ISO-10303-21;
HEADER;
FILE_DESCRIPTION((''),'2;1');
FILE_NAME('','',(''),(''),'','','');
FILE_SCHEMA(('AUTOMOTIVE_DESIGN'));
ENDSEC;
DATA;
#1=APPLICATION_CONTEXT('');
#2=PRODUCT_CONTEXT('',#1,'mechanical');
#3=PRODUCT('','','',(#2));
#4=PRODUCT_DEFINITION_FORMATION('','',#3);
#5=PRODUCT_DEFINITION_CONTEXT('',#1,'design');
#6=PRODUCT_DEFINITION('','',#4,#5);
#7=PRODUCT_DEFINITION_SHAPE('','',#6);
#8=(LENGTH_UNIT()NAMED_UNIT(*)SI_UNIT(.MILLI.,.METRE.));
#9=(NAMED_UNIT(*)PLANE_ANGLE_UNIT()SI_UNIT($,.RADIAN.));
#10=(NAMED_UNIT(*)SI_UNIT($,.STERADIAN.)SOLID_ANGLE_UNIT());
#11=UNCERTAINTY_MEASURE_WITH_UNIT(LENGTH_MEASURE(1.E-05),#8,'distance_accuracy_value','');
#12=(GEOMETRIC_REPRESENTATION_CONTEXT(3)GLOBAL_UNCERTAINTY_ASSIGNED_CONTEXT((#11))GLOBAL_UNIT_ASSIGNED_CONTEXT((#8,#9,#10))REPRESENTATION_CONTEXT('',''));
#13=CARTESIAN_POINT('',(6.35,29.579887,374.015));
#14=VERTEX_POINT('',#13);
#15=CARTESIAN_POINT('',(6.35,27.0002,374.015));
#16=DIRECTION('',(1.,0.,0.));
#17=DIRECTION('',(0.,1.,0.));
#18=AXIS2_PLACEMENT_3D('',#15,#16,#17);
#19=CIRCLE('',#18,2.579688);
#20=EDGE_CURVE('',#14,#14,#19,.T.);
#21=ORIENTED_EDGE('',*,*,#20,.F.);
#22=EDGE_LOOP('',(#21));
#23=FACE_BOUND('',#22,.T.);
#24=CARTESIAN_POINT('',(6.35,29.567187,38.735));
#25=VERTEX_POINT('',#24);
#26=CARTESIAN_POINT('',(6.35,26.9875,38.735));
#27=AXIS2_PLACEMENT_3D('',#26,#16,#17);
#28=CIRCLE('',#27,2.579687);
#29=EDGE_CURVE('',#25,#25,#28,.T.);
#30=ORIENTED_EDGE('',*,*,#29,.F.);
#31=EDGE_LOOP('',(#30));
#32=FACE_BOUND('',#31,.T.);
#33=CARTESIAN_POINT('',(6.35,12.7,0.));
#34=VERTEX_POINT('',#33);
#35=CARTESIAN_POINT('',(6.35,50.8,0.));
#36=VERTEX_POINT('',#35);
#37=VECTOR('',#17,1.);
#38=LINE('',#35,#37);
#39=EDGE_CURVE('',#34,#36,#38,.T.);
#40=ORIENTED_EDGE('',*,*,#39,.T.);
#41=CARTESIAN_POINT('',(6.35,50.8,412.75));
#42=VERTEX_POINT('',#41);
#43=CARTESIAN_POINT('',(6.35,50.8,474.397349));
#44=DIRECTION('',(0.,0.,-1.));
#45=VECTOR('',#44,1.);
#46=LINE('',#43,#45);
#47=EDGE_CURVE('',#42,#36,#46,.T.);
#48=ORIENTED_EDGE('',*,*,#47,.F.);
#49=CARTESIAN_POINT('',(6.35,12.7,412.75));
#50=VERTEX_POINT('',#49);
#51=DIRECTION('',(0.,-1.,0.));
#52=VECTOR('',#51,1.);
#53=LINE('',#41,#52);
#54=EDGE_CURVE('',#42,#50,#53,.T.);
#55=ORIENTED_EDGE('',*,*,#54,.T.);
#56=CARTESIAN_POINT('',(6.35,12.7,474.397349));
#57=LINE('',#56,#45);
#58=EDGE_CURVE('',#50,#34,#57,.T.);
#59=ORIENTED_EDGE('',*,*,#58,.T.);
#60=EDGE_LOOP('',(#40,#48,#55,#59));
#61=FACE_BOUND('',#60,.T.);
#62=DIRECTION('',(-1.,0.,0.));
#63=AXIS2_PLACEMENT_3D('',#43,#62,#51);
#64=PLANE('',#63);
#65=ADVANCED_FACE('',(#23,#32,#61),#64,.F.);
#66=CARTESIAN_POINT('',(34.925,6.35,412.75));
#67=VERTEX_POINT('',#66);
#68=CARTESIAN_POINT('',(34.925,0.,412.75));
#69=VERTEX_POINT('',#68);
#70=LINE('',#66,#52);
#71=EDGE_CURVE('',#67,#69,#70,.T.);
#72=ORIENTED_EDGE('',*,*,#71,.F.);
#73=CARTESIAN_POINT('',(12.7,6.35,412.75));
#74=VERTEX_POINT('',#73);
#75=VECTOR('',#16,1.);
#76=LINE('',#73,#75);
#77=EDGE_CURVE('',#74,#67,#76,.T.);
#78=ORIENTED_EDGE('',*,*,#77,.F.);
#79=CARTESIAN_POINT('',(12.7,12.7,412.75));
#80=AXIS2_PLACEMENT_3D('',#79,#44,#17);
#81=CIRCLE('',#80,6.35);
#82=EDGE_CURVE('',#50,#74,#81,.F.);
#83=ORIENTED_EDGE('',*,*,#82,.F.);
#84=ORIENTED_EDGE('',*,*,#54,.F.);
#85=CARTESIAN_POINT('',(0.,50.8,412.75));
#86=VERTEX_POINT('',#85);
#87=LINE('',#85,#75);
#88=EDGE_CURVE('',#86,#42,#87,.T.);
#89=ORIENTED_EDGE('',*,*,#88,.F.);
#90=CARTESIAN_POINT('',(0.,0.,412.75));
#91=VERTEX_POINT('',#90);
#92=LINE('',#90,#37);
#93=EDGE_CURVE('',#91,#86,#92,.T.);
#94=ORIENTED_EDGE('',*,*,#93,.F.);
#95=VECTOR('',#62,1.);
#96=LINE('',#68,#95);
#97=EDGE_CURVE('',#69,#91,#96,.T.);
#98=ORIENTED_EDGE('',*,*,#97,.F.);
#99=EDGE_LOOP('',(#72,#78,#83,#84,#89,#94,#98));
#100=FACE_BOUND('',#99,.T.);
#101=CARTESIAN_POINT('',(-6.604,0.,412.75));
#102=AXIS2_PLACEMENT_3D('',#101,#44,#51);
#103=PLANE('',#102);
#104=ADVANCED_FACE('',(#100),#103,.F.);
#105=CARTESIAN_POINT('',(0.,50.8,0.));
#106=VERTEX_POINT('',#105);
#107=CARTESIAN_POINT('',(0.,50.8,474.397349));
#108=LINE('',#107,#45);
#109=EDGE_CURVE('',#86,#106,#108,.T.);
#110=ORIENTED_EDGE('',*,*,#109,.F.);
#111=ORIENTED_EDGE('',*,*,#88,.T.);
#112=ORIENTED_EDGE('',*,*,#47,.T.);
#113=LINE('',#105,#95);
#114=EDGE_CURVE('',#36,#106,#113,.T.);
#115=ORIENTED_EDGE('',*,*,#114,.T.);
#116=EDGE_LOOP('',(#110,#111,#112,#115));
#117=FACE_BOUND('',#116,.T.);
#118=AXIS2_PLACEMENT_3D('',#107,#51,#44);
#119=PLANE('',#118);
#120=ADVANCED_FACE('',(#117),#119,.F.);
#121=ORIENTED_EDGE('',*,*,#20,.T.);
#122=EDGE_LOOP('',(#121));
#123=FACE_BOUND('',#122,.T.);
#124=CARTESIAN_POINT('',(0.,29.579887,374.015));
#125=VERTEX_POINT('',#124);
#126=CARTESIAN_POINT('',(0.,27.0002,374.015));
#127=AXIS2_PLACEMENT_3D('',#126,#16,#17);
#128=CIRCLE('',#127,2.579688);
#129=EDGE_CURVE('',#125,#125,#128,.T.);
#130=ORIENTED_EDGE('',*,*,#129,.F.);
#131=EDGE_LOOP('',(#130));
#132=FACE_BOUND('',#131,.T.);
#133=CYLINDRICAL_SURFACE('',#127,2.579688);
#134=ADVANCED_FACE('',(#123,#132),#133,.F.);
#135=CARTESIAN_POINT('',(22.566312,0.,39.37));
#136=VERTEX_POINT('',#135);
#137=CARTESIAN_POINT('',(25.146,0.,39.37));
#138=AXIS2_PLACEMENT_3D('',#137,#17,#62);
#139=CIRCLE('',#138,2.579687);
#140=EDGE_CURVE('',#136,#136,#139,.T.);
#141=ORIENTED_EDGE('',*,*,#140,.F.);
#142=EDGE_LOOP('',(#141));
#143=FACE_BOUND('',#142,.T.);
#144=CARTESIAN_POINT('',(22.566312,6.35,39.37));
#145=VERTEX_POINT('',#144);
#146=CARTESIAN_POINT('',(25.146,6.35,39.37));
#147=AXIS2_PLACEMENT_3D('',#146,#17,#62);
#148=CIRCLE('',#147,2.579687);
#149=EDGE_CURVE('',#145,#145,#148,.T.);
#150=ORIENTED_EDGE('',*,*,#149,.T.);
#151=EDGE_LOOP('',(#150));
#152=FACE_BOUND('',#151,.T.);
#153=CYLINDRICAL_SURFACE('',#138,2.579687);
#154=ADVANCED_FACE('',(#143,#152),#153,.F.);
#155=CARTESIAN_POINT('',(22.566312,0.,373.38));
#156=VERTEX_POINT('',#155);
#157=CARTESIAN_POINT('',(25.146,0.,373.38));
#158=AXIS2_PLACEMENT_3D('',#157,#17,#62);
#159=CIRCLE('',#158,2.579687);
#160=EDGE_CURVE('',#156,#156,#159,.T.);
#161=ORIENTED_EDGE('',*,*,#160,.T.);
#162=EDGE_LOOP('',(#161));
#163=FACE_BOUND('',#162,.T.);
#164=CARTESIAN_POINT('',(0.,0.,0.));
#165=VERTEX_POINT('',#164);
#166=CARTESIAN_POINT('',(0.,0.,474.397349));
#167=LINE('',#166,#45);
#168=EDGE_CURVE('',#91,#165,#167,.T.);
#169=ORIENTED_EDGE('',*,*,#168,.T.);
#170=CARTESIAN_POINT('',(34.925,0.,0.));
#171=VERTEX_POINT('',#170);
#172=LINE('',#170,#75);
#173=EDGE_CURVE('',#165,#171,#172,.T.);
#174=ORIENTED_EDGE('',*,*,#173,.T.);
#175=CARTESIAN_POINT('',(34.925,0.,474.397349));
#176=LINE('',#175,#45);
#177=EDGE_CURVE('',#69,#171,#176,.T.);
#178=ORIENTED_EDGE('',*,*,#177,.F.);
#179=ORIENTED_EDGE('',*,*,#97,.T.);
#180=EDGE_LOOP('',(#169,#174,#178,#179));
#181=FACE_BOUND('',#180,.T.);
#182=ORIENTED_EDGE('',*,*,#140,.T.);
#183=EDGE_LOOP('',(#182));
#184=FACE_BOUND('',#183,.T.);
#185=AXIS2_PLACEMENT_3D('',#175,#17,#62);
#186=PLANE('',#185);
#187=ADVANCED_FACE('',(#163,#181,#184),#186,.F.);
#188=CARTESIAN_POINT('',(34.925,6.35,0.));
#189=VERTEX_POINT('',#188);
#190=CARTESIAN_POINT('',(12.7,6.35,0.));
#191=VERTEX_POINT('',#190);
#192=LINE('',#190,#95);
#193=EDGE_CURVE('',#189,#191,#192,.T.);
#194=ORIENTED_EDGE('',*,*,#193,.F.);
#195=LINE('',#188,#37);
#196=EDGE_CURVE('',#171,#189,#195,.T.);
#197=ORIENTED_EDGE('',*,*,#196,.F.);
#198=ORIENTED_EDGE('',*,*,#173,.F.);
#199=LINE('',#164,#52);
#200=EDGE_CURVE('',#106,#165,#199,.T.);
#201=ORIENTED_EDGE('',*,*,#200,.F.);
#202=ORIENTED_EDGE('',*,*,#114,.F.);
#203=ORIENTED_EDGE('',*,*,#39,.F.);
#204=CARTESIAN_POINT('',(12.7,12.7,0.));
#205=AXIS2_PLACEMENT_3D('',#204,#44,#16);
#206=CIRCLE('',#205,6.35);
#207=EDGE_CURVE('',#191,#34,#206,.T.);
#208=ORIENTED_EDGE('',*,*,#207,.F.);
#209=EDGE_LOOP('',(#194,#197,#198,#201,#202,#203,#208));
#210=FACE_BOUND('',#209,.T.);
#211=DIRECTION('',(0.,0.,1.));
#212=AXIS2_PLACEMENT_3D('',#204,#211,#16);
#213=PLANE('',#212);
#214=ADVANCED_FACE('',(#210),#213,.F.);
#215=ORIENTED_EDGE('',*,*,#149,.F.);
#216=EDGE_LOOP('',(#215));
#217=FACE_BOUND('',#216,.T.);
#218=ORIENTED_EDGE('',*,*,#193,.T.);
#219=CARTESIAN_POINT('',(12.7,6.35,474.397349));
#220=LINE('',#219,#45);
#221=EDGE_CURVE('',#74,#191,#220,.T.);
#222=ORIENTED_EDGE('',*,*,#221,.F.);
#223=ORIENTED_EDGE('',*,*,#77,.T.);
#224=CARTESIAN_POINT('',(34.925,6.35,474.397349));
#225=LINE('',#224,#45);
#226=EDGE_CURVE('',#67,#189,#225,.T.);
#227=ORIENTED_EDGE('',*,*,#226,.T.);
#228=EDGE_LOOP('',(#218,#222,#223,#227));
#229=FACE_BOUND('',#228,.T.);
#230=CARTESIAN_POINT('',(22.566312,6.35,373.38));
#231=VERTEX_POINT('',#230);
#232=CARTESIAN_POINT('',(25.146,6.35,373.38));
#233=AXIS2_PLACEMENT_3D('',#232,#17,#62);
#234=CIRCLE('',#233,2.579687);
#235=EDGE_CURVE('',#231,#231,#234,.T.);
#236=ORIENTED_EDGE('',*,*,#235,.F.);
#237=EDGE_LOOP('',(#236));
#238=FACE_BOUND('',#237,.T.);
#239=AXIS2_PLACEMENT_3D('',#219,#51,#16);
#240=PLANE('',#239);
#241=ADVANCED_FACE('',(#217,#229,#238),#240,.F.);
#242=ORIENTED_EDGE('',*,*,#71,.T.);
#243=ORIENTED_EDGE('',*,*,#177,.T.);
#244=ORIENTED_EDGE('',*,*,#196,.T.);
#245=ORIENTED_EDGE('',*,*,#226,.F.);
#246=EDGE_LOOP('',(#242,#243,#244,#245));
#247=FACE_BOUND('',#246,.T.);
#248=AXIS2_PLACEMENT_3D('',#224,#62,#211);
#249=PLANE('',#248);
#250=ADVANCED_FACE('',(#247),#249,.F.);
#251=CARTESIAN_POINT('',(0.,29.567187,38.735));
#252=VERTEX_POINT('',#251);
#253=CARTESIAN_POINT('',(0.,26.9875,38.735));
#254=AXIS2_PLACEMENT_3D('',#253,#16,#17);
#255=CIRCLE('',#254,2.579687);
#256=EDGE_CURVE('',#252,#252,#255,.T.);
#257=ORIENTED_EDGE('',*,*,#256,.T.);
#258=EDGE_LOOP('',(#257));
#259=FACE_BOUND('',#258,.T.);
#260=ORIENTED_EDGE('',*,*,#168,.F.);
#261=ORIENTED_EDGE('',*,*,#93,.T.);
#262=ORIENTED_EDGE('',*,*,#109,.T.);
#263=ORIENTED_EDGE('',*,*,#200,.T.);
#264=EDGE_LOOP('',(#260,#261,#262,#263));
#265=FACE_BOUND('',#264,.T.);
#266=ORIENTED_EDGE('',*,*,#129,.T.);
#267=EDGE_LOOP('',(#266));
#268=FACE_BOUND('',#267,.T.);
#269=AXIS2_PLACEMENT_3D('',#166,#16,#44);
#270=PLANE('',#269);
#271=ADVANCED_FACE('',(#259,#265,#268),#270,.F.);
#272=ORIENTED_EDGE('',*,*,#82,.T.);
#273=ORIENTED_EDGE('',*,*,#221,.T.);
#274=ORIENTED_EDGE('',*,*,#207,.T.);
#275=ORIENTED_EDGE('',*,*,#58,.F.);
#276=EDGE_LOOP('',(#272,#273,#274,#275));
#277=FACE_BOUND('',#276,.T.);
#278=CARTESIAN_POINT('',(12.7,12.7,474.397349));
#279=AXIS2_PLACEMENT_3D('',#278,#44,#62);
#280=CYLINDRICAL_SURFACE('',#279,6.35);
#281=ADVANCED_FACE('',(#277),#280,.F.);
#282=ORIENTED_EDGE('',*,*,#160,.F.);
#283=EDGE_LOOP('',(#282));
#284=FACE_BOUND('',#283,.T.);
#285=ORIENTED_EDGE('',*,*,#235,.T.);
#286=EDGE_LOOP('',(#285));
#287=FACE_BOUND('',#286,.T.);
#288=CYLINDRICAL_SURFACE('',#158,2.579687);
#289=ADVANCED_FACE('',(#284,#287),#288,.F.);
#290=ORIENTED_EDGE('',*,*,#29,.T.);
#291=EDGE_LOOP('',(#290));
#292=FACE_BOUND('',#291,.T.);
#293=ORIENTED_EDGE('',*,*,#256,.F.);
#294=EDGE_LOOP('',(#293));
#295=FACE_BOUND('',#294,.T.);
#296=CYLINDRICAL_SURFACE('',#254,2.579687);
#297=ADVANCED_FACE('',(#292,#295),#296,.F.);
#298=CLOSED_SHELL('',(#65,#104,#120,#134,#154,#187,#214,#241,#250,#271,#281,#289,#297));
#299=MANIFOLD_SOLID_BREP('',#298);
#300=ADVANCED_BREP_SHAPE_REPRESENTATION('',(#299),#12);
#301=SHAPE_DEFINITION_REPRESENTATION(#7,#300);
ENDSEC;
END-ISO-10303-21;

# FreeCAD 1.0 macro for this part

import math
import FreeCAD as App
import Part
import Sketcher

V = App.Vector
Q = App.Units.Quantity

doc = App.newDocument("Part")
params = doc.addObject("Spreadsheet::Sheet", "Params")
for row, (alias, value) in enumerate([
    ("sketch1_height", "2 in"),
    ("sketch1_radius", "0.25 in"),
    ("sketch1_height2", "1.5 in"),
    ("sketch1_width", "1.375 in"),
    ("pad1_length", "16.25 in"),
    ("sketch2_diameter", "0.203125 in"),
    ("sketch3_diameter", "0.203125 in"),
], start=1):
    params.set(f"A{row}", alias)
    params.set(f"B{row}", "=" + value)
    params.setAlias(f"B{row}", alias)

body = doc.addObject("PartDesign::Body", "Body")

# Sketch on XY plane
sketch1 = body.newObject("Sketcher::SketchObject", "Sketch")
sketch1.AttachmentSupport = (doc.getObject("XY_Plane"), [""])
sketch1.MapMode = "FlatFace"
sketch1.addGeometry(Part.LineSegment(V(0, 51, 0), V(0, 0, 0)), False)
sketch1.addGeometry(Part.LineSegment(V(0, 0, 0), V(35, 0, 0)), False)
sketch1.addGeometry(Part.LineSegment(V(35, 0, 0), V(35, 6, 0)), False)
sketch1.addGeometry(Part.LineSegment(V(35, 6, 0), V(13, 6, 0)), False)
sketch1.addGeometry(Part.ArcOfCircle(Part.Circle(V(13, 13, 0), V(0, 0, 1), 6), math.radians(180), math.radians(270)), False)
sketch1.addGeometry(Part.LineSegment(V(6, 13, 0), V(6, 51, 0)), False)
sketch1.addGeometry(Part.LineSegment(V(6, 51, 0), V(0, 51, 0)), False)
sketch1.addConstraint(Sketcher.Constraint("Coincident", 0, 2, 1, 1))
sketch1.addConstraint(Sketcher.Constraint("Coincident", 1, 2, 2, 1))
sketch1.addConstraint(Sketcher.Constraint("Coincident", 2, 2, 3, 1))
sketch1.addConstraint(Sketcher.Constraint("Tangent", 3, 2, 4, 2))
sketch1.addConstraint(Sketcher.Constraint("Tangent", 4, 1, 5, 1))
sketch1.addConstraint(Sketcher.Constraint("Coincident", 5, 2, 6, 1))
sketch1.addConstraint(Sketcher.Constraint("Coincident", 6, 2, 0, 1))
sketch1.addConstraint(Sketcher.Constraint("Vertical", 0))
sketch1.addConstraint(Sketcher.Constraint("Horizontal", 1))
sketch1.addConstraint(Sketcher.Constraint("Vertical", 2))
sketch1.addConstraint(Sketcher.Constraint("Horizontal", 3))
sketch1.addConstraint(Sketcher.Constraint("Vertical", 5))
sketch1.addConstraint(Sketcher.Constraint("Horizontal", 6))
sketch1.addConstraint(Sketcher.Constraint("Coincident", 0, 2, -1, 1))
sketch1.addConstraint(Sketcher.Constraint("Equal", 6, 2))
sketch1.addConstraint(Sketcher.Constraint("DistanceY", 0, 2, 0, 1, Q("2 in")))
sketch1.addConstraint(Sketcher.Constraint("Radius", 4, Q("0.25 in")))
sketch1.addConstraint(Sketcher.Constraint("DistanceY", 5, 1, 5, 2, Q("1.5 in")))
sketch1.addConstraint(Sketcher.Constraint("DistanceX", 1, 1, 1, 2, Q("1.375 in")))
sketch1.setExpression("Constraints[15]", "Params.sketch1_height")
sketch1.setExpression("Constraints[16]", "Params.sketch1_radius")
sketch1.setExpression("Constraints[17]", "Params.sketch1_height2")
sketch1.setExpression("Constraints[18]", "Params.sketch1_width")
pad1 = body.newObject("PartDesign::Pad", "Pad")
pad1.Profile = sketch1
pad1.setExpression("Length", "Params.pad1_length")

# Sketch on YZ plane
sketch2 = body.newObject("Sketcher::SketchObject", "Sketch001")
sketch2.AttachmentSupport = (doc.getObject("YZ_Plane"), [""])
sketch2.MapMode = "FlatFace"
sketch2.AttachmentOffset = App.Placement(V(0, 0, 0.25 * 25.4), App.Rotation())
sketch2.addGeometry(Part.Circle(V(27, 374, 0), V(0, 0, 1), 2.6), False)
sketch2.addGeometry(Part.Circle(V(27, 38.7, 0), V(0, 0, 1), 2.6), False)
sketch2.addConstraint(Sketcher.Constraint("Equal", 0, 1))
sketch2.addConstraint(Sketcher.Constraint("Diameter", 0, Q("0.203125 in")))
sketch2.addConstraint(Sketcher.Constraint("DistanceY", 1, 3, 0, 3, Q("13.2 in")))
sketch2.addConstraint(Sketcher.Constraint("DistanceX", -1, 1, 0, 3, Q("1.063 in")))
sketch2.addConstraint(Sketcher.Constraint("DistanceY", -1, 1, 0, 3, Q("14.725 in")))
sketch2.addConstraint(Sketcher.Constraint("DistanceX", -1, 1, 1, 3, Q("1.0625 in")))
sketch2.setExpression("Constraints[1]", "Params.sketch2_diameter")
pocket1 = body.newObject("PartDesign::Pocket", "Pocket")
pocket1.Profile = sketch2
pocket1.Type = "ThroughAll"

# Sketch on XZ plane
sketch3 = body.newObject("Sketcher::SketchObject", "Sketch002")
sketch3.AttachmentSupport = (doc.getObject("XZ_Plane"), [""])
sketch3.MapMode = "FlatFace"
sketch3.AttachmentOffset = App.Placement(V(0, 0, -0.25 * 25.4), App.Rotation())
sketch3.addGeometry(Part.Circle(V(25.1, 373.4, 0), V(0, 0, 1), 2.6), False)
sketch3.addGeometry(Part.Circle(V(25.1, 39.4, 0), V(0, 0, 1), 2.6), False)
sketch3.addConstraint(Sketcher.Constraint("Equal", 0, 1))
sketch3.addConstraint(Sketcher.Constraint("Vertical", 0, 3, 1, 3))
sketch3.addConstraint(Sketcher.Constraint("Diameter", 0, Q("0.203125 in")))
sketch3.addConstraint(Sketcher.Constraint("DistanceY", -1, 1, 0, 3, Q("14.7 in")))
sketch3.addConstraint(Sketcher.Constraint("DistanceX", -1, 1, 0, 3, Q("0.99 in")))
sketch3.addConstraint(Sketcher.Constraint("DistanceY", -1, 1, 1, 3, Q("1.55 in")))
sketch3.setExpression("Constraints[2]", "Params.sketch3_diameter")
pocket2 = body.newObject("PartDesign::Pocket", "Pocket001")
pocket2.Profile = sketch3
pocket2.Type = "ThroughAll"
pocket2.Reversed = True

doc.recompute()
